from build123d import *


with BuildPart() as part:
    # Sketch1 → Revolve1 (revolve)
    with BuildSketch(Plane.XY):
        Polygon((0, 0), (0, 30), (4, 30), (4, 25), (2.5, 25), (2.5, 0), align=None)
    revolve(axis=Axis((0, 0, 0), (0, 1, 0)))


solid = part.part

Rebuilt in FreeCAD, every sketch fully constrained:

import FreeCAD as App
import Part
import Sketcher

V = App.Vector


def add_polygon(sketch, points):
    """Adds a closed chain of lines whose ends are joined by coincident constraints."""
    first, n = sketch.GeometryCount, len(points)
    for a, b in zip(points, points[1:] + points[:1]):
        sketch.addGeometry(Part.LineSegment(App.Vector(*a, 0), App.Vector(*b, 0)), False)
    for i in range(n):
        sketch.addConstraint(Sketcher.Constraint("Coincident", first + i, 2, first + (i + 1) % n, 1))

doc = App.newDocument("Part")
body = doc.addObject("PartDesign::Body", "Body")

# Sketch on XY plane
sketch1 = body.newObject("Sketcher::SketchObject", "Sketch")
sketch1.AttachmentSupport = (doc.getObject("XY_Plane"), [""])
sketch1.MapMode = "FlatFace"
add_polygon(sketch1, [(0, 30), (0, 0), (2.5, 0), (2.5, 25), (4, 25), (4, 30)])  # lines 0-5
sketch1.addConstraint([
    Sketcher.Constraint("Vertical", 0),
    Sketcher.Constraint("Horizontal", 1),
    Sketcher.Constraint("Vertical", 2),
    Sketcher.Constraint("Horizontal", 3),
    Sketcher.Constraint("Vertical", 4),
    Sketcher.Constraint("Horizontal", 5),
    Sketcher.Constraint("Coincident", 0, 2, -1, 1),
    Sketcher.Constraint("DistanceX", 5, 2, 5, 1, 4.0),
    Sketcher.Constraint("DistanceY", 0, 2, 0, 1, 30.0),
    Sketcher.Constraint("DistanceY", 2, 1, 2, 2, 25.0),
    Sketcher.Constraint("DistanceX", 1, 1, 1, 2, 2.5),
])
revolution = body.newObject("PartDesign::Revolution", "Revolution")
revolution.Profile = sketch1
revolution.ReferenceAxis = (sketch1, ["V_Axis"])
revolution.Angle = 360

doc.recompute()
